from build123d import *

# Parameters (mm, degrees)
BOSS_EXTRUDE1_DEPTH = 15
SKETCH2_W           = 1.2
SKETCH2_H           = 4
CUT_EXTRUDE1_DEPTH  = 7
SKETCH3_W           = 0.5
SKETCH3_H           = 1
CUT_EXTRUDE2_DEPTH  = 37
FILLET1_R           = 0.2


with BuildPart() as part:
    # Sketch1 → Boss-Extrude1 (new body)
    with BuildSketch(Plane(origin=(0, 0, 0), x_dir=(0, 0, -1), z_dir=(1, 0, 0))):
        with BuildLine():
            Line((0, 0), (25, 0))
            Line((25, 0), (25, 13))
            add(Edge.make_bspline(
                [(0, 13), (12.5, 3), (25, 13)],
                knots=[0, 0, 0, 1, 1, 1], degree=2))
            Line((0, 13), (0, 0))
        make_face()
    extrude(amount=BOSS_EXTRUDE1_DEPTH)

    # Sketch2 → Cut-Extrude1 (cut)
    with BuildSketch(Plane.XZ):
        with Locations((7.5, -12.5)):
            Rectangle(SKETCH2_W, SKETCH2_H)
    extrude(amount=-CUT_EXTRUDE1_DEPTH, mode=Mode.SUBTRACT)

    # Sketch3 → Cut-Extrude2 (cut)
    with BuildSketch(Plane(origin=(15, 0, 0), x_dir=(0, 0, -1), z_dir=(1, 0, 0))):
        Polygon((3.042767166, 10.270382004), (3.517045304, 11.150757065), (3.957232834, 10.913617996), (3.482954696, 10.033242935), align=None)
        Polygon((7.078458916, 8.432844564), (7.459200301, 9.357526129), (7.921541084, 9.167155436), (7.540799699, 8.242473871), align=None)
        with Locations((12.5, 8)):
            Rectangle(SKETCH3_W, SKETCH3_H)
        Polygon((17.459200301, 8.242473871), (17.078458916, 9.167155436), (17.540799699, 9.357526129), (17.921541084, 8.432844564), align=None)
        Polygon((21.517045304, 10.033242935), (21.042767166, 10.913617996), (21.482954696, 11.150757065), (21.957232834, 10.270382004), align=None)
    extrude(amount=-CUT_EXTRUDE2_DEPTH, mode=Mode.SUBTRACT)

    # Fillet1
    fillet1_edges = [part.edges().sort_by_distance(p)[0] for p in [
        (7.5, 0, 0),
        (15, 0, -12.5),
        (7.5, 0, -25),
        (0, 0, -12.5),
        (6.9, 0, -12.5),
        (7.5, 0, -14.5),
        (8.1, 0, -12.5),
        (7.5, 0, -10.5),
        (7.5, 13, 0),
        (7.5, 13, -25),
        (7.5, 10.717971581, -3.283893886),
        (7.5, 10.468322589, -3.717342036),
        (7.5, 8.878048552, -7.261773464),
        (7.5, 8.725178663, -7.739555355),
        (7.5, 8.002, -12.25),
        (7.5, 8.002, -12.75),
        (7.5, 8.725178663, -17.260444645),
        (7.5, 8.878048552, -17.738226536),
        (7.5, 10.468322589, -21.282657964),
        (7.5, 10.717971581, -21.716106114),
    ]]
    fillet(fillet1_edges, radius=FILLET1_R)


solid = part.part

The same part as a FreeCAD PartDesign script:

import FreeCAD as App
import Part
import Sketcher
Q = App.Units.Quantity


def edges_at(feature, points):
    """Names of the edges that pass closest to the given points."""
    edges = feature.Shape.Edges
    near = lambda p: min(range(len(edges)), key=lambda i: edges[i].distToShape(Part.Vertex(*p))[0])
    return sorted({f"Edge{near(p) + 1}" for p in points})

doc = App.newDocument("Part")
params = doc.addObject("Spreadsheet::Sheet", "Params")
for row, (alias, value) in enumerate([
    ("pad1_length", "15 mm"),
    ("sketch2_height", "4 mm"),
    ("sketch2_width", "1.2 mm"),
    ("pocket1_length", "7 mm"),
    ("sketch3_width", "1 mm"),
    ("sketch3_length", "1 mm"),
    ("sketch3_length2", "1 mm"),
    ("sketch3_length3", "1 mm"),
    ("sketch3_length4", "1 mm"),
    ("pocket2_length", "37 mm"),
    ("fillet_radius", "0.2 mm"),
], start=1):
    params.set(f"A{row}", alias)
    params.set(f"B{row}", "=" + value)
    params.setAlias(f"B{row}", alias)

body = doc.addObject("PartDesign::Body", "Body")

# Sketch on YZ plane
sketch1 = doc.addObject("Sketcher::SketchObject", "Sketch")
body.addObject(sketch1)
sketch1.AttachmentSupport = (doc.YZ_Plane, [""])
sketch1.MapMode = "FlatFace"
sketch1.addGeometry(Part.LineSegment(App.Vector(0, 0, 0), App.Vector(0, -25, 0)), False)
sketch1.addGeometry(Part.LineSegment(App.Vector(0, -25, 0), App.Vector(13, -25, 0)), False)
sketch1.addGeometry(Part.BSplineCurve([App.Vector(13, 0, 0), App.Vector(3, -12.5, 0), App.Vector(13, -25, 0)], [3, 3], [0, 1], False, 2, [1, 1, 1], False), False)
sketch1.addGeometry(Part.LineSegment(App.Vector(13, 0, 0), App.Vector(0, 0, 0)), False)
sketch1.addConstraint(Sketcher.Constraint("Block", 2))
sketch1.addConstraint(Sketcher.Constraint("Coincident", 0, 2, 1, 1))
sketch1.addConstraint(Sketcher.Constraint("Coincident", 1, 2, 2, 2))
sketch1.addConstraint(Sketcher.Constraint("Coincident", 2, 1, 3, 1))
sketch1.addConstraint(Sketcher.Constraint("Coincident", 3, 2, 0, 1))
sketch1.addConstraint(Sketcher.Constraint("Vertical", 0))
sketch1.addConstraint(Sketcher.Constraint("Horizontal", 1))
sketch1.addConstraint(Sketcher.Constraint("Horizontal", 3))
sketch1.addConstraint(Sketcher.Constraint("PointOnObject", 0, 2, -2))
pad1 = doc.addObject("PartDesign::Pad", "Pad")
body.addObject(pad1)
pad1.Profile = sketch1
pad1.setExpression("Length", "Params.pad1_length")

# Sketch on XZ plane
sketch2 = doc.addObject("Sketcher::SketchObject", "Sketch001")
body.addObject(sketch2)
sketch2.AttachmentSupport = (doc.XZ_Plane, [""])
sketch2.MapMode = "FlatFace"
sketch2.addGeometry(Part.LineSegment(App.Vector(6.9, -10.5, 0), App.Vector(6.9, -14.5, 0)), False)
sketch2.addGeometry(Part.LineSegment(App.Vector(6.9, -14.5, 0), App.Vector(8.1, -14.5, 0)), False)
sketch2.addGeometry(Part.LineSegment(App.Vector(8.1, -14.5, 0), App.Vector(8.1, -10.5, 0)), False)
sketch2.addGeometry(Part.LineSegment(App.Vector(8.1, -10.5, 0), App.Vector(6.9, -10.5, 0)), False)
sketch2.addConstraint(Sketcher.Constraint("Coincident", 0, 2, 1, 1))
sketch2.addConstraint(Sketcher.Constraint("Coincident", 1, 2, 2, 1))
sketch2.addConstraint(Sketcher.Constraint("Coincident", 2, 2, 3, 1))
sketch2.addConstraint(Sketcher.Constraint("Coincident", 3, 2, 0, 1))
sketch2.addConstraint(Sketcher.Constraint("Vertical", 0))
sketch2.addConstraint(Sketcher.Constraint("Horizontal", 1))
sketch2.addConstraint(Sketcher.Constraint("Vertical", 2))
sketch2.addConstraint(Sketcher.Constraint("Horizontal", 3))
sketch2.addConstraint(Sketcher.Constraint("DistanceY", 0, 2, 0, 1, Q("4 mm")))
sketch2.addConstraint(Sketcher.Constraint("DistanceX", 1, 1, 1, 2, Q("1.2 mm")))
sketch2.addConstraint(Sketcher.Constraint("DistanceX", -1, 1, 0, 2, Q("6.9 mm")))
sketch2.addConstraint(Sketcher.Constraint("DistanceY", 0, 2, -1, 1, Q("14.5 mm")))
sketch2.setExpression("Constraints[8]", "Params.sketch2_height")
sketch2.setExpression("Constraints[9]", "Params.sketch2_width")
pocket1 = doc.addObject("PartDesign::Pocket", "Pocket")
body.addObject(pocket1)
pocket1.Profile = sketch2
pocket1.setExpression("Length", "Params.pocket1_length")

# Sketch on YZ plane
sketch3 = doc.addObject("Sketcher::SketchObject", "Sketch002")
body.addObject(sketch3)
sketch3.AttachmentSupport = (doc.YZ_Plane, [""])
sketch3.MapMode = "FlatFace"
sketch3.AttachmentOffset = App.Placement(App.Vector(0, 0, 15), App.Rotation())
sketch3.addGeometry(Part.LineSegment(App.Vector(11.150757, -3.517045, 0), App.Vector(10.270382, -3.042767, 0)), False)
sketch3.addGeometry(Part.LineSegment(App.Vector(10.270382, -3.042767, 0), App.Vector(10.033243, -3.482955, 0)), False)
sketch3.addGeometry(Part.LineSegment(App.Vector(10.033243, -3.482955, 0), App.Vector(10.913618, -3.957233, 0)), False)
sketch3.addGeometry(Part.LineSegment(App.Vector(10.913618, -3.957233, 0), App.Vector(11.150757, -3.517045, 0)), False)
sketch3.addGeometry(Part.LineSegment(App.Vector(9.357526, -7.4592, 0), App.Vector(8.432845, -7.078459, 0)), False)
sketch3.addGeometry(Part.LineSegment(App.Vector(8.432845, -7.078459, 0), App.Vector(8.242474, -7.5408, 0)), False)
sketch3.addGeometry(Part.LineSegment(App.Vector(8.242474, -7.5408, 0), App.Vector(9.167155, -7.921541, 0)), False)
sketch3.addGeometry(Part.LineSegment(App.Vector(9.167155, -7.921541, 0), App.Vector(9.357526, -7.4592, 0)), False)
sketch3.addGeometry(Part.LineSegment(App.Vector(8.5, -12.25, 0), App.Vector(7.5, -12.25, 0)), False)
sketch3.addGeometry(Part.LineSegment(App.Vector(7.5, -12.25, 0), App.Vector(7.5, -12.75, 0)), False)
sketch3.addGeometry(Part.LineSegment(App.Vector(7.5, -12.75, 0), App.Vector(8.5, -12.75, 0)), False)
sketch3.addGeometry(Part.LineSegment(App.Vector(8.5, -12.75, 0), App.Vector(8.5, -12.25, 0)), False)
sketch3.addGeometry(Part.LineSegment(App.Vector(9.167155, -17.078459, 0), App.Vector(8.242474, -17.4592, 0)), False)
sketch3.addGeometry(Part.LineSegment(App.Vector(8.242474, -17.4592, 0), App.Vector(8.432845, -17.921541, 0)), False)
sketch3.addGeometry(Part.LineSegment(App.Vector(8.432845, -17.921541, 0), App.Vector(9.357526, -17.5408, 0)), False)
sketch3.addGeometry(Part.LineSegment(App.Vector(9.357526, -17.5408, 0), App.Vector(9.167155, -17.078459, 0)), False)
sketch3.addGeometry(Part.LineSegment(App.Vector(10.913618, -21.042767, 0), App.Vector(10.033243, -21.517045, 0)), False)
sketch3.addGeometry(Part.LineSegment(App.Vector(10.033243, -21.517045, 0), App.Vector(10.270382, -21.957233, 0)), False)
sketch3.addGeometry(Part.LineSegment(App.Vector(10.270382, -21.957233, 0), App.Vector(11.150757, -21.482955, 0)), False)
sketch3.addGeometry(Part.LineSegment(App.Vector(11.150757, -21.482955, 0), App.Vector(10.913618, -21.042767, 0)), False)
sketch3.addConstraint(Sketcher.Constraint("Coincident", 0, 2, 1, 1))
sketch3.addConstraint(Sketcher.Constraint("Coincident", 1, 2, 2, 1))
sketch3.addConstraint(Sketcher.Constraint("Coincident", 2, 2, 3, 1))
sketch3.addConstraint(Sketcher.Constraint("Coincident", 3, 2, 0, 1))
sketch3.addConstraint(Sketcher.Constraint("Coincident", 4, 2, 5, 1))
sketch3.addConstraint(Sketcher.Constraint("Coincident", 5, 2, 6, 1))
sketch3.addConstraint(Sketcher.Constraint("Coincident", 6, 2, 7, 1))
sketch3.addConstraint(Sketcher.Constraint("Coincident", 7, 2, 4, 1))
sketch3.addConstraint(Sketcher.Constraint("Coincident", 8, 2, 9, 1))
sketch3.addConstraint(Sketcher.Constraint("Coincident", 9, 2, 10, 1))
sketch3.addConstraint(Sketcher.Constraint("Coincident", 10, 2, 11, 1))
sketch3.addConstraint(Sketcher.Constraint("Coincident", 11, 2, 8, 1))
sketch3.addConstraint(Sketcher.Constraint("Coincident", 12, 2, 13, 1))
sketch3.addConstraint(Sketcher.Constraint("Coincident", 13, 2, 14, 1))
sketch3.addConstraint(Sketcher.Constraint("Coincident", 14, 2, 15, 1))
sketch3.addConstraint(Sketcher.Constraint("Coincident", 15, 2, 12, 1))
sketch3.addConstraint(Sketcher.Constraint("Coincident", 16, 2, 17, 1))
sketch3.addConstraint(Sketcher.Constraint("Coincident", 17, 2, 18, 1))
sketch3.addConstraint(Sketcher.Constraint("Coincident", 18, 2, 19, 1))
sketch3.addConstraint(Sketcher.Constraint("Coincident", 19, 2, 16, 1))
sketch3.addConstraint(Sketcher.Constraint("Horizontal", 8))
sketch3.addConstraint(Sketcher.Constraint("Vertical", 9))
sketch3.addConstraint(Sketcher.Constraint("Horizontal", 10))
sketch3.addConstraint(Sketcher.Constraint("Vertical", 11))
sketch3.addConstraint(Sketcher.Constraint("DistanceX", 8, 2, 8, 1, Q("1 mm")))
sketch3.addConstraint(Sketcher.Constraint("Distance", 0, Q("1 mm")))
sketch3.addConstraint(Sketcher.Constraint("Distance", 2, Q("1 mm")))
sketch3.addConstraint(Sketcher.Constraint("Distance", 4, Q("1 mm")))
sketch3.addConstraint(Sketcher.Constraint("Distance", 6, Q("1 mm")))
sketch3.addConstraint(Sketcher.Constraint("Distance", 12, Q("1 mm")))
sketch3.addConstraint(Sketcher.Constraint("Distance", 14, Q("1 mm")))
sketch3.addConstraint(Sketcher.Constraint("Distance", 16, Q("1 mm")))
sketch3.addConstraint(Sketcher.Constraint("Distance", 18, Q("1 mm")))
sketch3.addConstraint(Sketcher.Constraint("DistanceY", 9, 2, 9, 1, Q("0.5 mm")))
sketch3.addConstraint(Sketcher.Constraint("Distance", 1, Q("0.5 mm")))
sketch3.addConstraint(Sketcher.Constraint("Distance", 3, Q("0.5 mm")))
sketch3.addConstraint(Sketcher.Constraint("Distance", 5, Q("0.5 mm")))
sketch3.addConstraint(Sketcher.Constraint("Distance", 7, Q("0.5 mm")))
sketch3.addConstraint(Sketcher.Constraint("Distance", 13, Q("0.5 mm")))
sketch3.addConstraint(Sketcher.Constraint("Distance", 15, Q("0.5 mm")))
sketch3.addConstraint(Sketcher.Constraint("Distance", 17, Q("0.5 mm")))
sketch3.addConstraint(Sketcher.Constraint("Distance", 19, Q("0.5 mm")))
sketch3.addConstraint(Sketcher.Constraint("DistanceX", -1, 1, 8, 2, Q("7.5 mm")))
sketch3.addConstraint(Sketcher.Constraint("DistanceY", 8, 2, -1, 1, Q("12.25 mm")))
sketch3.addConstraint(Sketcher.Constraint("DistanceY", 5, 2, -1, 1, Q("7.5408 mm")))
sketch3.addConstraint(Sketcher.Constraint("DistanceY", 7, 2, -1, 1, Q("7.4592 mm")))
sketch3.addConstraint(Sketcher.Constraint("DistanceY", 12, 2, -1, 1, Q("17.4592 mm")))
sketch3.addConstraint(Sketcher.Constraint("DistanceY", 14, 2, -1, 1, Q("17.5408 mm")))
sketch3.addConstraint(Sketcher.Constraint("DistanceX", 4, 2, 1, 2, Q("1.600398 mm")))
sketch3.addConstraint(Sketcher.Constraint("DistanceX", 6, 2, 3, 2, Q("1.983602 mm")))
sketch3.addConstraint(Sketcher.Constraint("DistanceX", 13, 2, 16, 2, Q("1.600398 mm")))
sketch3.addConstraint(Sketcher.Constraint("DistanceX", 15, 2, 18, 2, Q("1.983602 mm")))
sketch3.addConstraint(Sketcher.Constraint("DistanceY", 4, 2, -1, 1, Q("7.078459 mm")))
sketch3.addConstraint(Sketcher.Constraint("DistanceY", 13, 2, -1, 1, Q("17.921541 mm")))
sketch3.addConstraint(Sketcher.Constraint("DistanceX", 1, 2, 0, 2, Q("0.237139 mm")))
sketch3.addConstraint(Sketcher.Constraint("DistanceY", 4, 2, 0, 2, Q("4.035692 mm")))
sketch3.addConstraint(Sketcher.Constraint("DistanceX", 12, 2, 6, 2, Q("0.924682 mm")))
sketch3.addConstraint(Sketcher.Constraint("DistanceX", 16, 2, 17, 2, Q("0.237139 mm")))
sketch3.addConstraint(Sketcher.Constraint("DistanceY", 17, 2, 13, 2, Q("4.035692 mm")))
sketch3.addConstraint(Sketcher.Constraint("DistanceX", -1, 1, 0, 2, Q("10.270382 mm")))
sketch3.setExpression("Constraints[24]", "Params.sketch3_width")
sketch3.setExpression("Constraints[25]", "Params.sketch3_length")
sketch3.setExpression("Constraints[26]", "Params.sketch3_length2")
sketch3.setExpression("Constraints[27]", "Params.sketch3_length3")
sketch3.setExpression("Constraints[28]", "Params.sketch3_length4")
pocket2 = doc.addObject("PartDesign::Pocket", "Pocket001")
body.addObject(pocket2)
pocket2.Profile = sketch3
pocket2.setExpression("Length", "Params.pocket2_length")
doc.recompute()

fillet = doc.addObject("PartDesign::Fillet", "Fillet")
body.addObject(fillet)
fillet.Base = (pocket2, edges_at(pocket2, [
    (7.5, 0, 0),
    (15, 0, -12.5),
    (7.5, 0, -25),
    (0, 0, -12.5),
    (6.9, 0, -12.5),
    (7.5, 0, -14.5),
    (8.1, 0, -12.5),
    (7.5, 0, -10.5),
    (7.5, 13, 0),
    (7.5, 13, -25),
    (7.5, 10.718, -3.284),
    (7.5, 10.468, -3.717),
    (7.5, 8.878, -7.262),
    (7.5, 8.725, -7.74),
    (7.5, 8.002, -12.25),
    (7.5, 8.002, -12.75),
    (7.5, 8.725, -17.26),
    (7.5, 8.878, -17.738),
    (7.5, 10.468, -21.283),
    (7.5, 10.718, -21.716),
]))
fillet.setExpression("Radius", "Params.fillet_radius")

doc.recompute()
